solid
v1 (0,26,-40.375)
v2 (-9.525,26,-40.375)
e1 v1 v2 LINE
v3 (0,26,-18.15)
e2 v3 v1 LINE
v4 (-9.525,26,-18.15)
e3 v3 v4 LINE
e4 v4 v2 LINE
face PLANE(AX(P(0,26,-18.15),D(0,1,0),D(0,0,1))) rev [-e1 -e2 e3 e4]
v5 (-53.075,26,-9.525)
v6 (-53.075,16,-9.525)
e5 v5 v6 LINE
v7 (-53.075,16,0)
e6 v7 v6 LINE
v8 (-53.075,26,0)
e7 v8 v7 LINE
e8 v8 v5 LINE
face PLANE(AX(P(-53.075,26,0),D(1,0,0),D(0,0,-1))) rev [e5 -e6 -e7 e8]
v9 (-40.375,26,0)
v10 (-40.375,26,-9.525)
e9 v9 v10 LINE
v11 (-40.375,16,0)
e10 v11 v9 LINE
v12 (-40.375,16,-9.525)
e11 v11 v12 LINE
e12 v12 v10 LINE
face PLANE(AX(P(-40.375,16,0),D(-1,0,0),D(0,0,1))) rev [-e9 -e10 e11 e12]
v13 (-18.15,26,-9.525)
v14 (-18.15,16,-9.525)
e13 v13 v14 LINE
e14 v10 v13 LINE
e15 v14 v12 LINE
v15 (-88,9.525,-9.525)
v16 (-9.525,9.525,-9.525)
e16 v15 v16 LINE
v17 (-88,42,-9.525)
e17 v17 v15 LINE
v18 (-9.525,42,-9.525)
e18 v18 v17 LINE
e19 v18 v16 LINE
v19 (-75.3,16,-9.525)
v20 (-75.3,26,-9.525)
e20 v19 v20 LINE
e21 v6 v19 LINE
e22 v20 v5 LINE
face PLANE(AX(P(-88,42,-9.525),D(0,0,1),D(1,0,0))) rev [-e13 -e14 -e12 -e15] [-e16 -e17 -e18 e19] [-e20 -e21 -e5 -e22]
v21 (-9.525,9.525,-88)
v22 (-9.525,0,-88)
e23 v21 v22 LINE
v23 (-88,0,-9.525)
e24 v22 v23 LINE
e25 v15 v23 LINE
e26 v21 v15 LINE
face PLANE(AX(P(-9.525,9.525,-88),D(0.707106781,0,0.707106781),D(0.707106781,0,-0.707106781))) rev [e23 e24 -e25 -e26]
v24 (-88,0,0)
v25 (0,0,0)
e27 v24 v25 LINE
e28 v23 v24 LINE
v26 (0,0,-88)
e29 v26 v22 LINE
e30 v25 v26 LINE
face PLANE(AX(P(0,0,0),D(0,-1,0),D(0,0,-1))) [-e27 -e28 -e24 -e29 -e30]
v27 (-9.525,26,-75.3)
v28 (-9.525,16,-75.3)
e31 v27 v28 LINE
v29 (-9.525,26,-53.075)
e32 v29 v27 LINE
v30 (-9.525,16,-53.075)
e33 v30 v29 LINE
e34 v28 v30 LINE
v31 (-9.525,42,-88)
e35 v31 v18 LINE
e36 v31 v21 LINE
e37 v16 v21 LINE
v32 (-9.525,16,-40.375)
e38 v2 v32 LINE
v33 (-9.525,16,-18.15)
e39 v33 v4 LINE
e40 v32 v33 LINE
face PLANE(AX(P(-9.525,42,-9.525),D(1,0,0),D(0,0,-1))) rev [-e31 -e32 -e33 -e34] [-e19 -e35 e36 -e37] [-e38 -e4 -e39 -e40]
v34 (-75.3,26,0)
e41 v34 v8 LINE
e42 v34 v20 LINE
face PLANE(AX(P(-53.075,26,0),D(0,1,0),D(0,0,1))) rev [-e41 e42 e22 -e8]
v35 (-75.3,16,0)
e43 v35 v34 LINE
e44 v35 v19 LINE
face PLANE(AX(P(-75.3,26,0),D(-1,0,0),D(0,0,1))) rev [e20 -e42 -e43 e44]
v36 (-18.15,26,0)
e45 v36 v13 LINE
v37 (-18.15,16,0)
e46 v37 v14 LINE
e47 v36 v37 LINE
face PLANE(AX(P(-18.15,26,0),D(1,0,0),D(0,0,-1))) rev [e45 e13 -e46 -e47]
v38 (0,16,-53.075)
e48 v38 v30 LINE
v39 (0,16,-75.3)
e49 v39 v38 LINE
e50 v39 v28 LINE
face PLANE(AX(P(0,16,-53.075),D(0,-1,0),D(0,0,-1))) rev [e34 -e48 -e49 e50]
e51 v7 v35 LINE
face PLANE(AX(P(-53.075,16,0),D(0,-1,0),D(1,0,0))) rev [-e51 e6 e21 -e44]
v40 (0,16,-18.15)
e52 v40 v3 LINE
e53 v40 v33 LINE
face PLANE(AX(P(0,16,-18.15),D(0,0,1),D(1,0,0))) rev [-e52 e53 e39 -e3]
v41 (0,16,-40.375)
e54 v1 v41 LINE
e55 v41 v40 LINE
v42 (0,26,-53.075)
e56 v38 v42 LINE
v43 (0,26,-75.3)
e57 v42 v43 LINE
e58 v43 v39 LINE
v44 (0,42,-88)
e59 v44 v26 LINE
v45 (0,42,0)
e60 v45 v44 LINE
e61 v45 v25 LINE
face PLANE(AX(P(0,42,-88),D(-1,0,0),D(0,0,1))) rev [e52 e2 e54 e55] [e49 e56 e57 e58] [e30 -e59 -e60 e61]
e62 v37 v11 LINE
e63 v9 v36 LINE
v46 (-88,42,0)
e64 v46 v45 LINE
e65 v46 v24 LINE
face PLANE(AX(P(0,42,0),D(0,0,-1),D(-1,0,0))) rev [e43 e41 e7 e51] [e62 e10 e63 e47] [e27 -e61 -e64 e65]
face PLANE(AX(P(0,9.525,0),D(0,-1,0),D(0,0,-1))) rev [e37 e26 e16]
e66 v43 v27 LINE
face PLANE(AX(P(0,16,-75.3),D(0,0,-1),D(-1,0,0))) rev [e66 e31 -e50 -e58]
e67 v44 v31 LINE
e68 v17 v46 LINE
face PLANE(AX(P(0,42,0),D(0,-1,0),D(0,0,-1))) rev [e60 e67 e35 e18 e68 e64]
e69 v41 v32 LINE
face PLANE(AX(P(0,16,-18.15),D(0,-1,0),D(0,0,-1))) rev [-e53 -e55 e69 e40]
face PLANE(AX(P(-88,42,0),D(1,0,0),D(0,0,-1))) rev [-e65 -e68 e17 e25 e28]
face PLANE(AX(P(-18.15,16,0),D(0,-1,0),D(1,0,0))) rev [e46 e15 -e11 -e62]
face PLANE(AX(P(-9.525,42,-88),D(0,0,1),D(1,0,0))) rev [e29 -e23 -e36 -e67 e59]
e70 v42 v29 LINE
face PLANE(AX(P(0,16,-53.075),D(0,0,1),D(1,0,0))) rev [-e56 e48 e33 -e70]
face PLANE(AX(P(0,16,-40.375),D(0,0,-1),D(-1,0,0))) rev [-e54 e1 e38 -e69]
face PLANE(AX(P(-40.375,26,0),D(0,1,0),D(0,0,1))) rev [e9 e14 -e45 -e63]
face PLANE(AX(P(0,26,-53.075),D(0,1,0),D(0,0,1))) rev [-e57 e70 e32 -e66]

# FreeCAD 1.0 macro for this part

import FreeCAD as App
import Part
import Sketcher

V = App.Vector


def add_polygon(sketch, points):
    """Adds a closed chain of lines whose ends are joined by coincident constraints."""
    first, n = sketch.GeometryCount, len(points)
    for a, b in zip(points, points[1:] + points[:1]):
        sketch.addGeometry(Part.LineSegment(App.Vector(*a, 0), App.Vector(*b, 0)), False)
    for i in range(n):
        sketch.addConstraint(Sketcher.Constraint("Coincident", first + i, 2, first + (i + 1) % n, 1))

doc = App.newDocument("Part")
params = doc.addObject("Spreadsheet::Sheet", "Params")
for row, (alias, value) in enumerate([
    ("sketch1_width", "88 mm"),
    ("pad1_length", "42 mm"),
    ("pad2_length", "9.525 mm"),
    ("sketch3_height", "10 mm"),
    ("pocket1_length", "9.525 mm"),
    ("sketch4_width", "10 mm"),
    ("pocket2_length", "9.525 mm"),
], start=1):
    params.set(f"A{row}", alias)
    params.set(f"B{row}", "=" + value)
    params.setAlias(f"B{row}", alias)

body = doc.addObject("PartDesign::Body", "Body")

sketch1 = doc.addObject("Sketcher::SketchObject", "Sketch")
body.addObject(sketch1)
sketch1.AttachmentSupport = (doc.XZ_Plane, [""])
sketch1.MapMode = "FlatFace"
add_polygon(sketch1, [(-88, 0), (0, 0), (0, -88), (-10, -88), (-10, -10), (-88, -10)])
sketch1.addConstraint([
    Sketcher.Constraint("Horizontal", 0),
    Sketcher.Constraint("Vertical", 1),
    Sketcher.Constraint("Horizontal", 2),
    Sketcher.Constraint("Vertical", 3),
    Sketcher.Constraint("Horizontal", 4),
    Sketcher.Constraint("Vertical", 5),
    Sketcher.Constraint("Coincident", 0, 2, -1, 1),
    Sketcher.Constraint("Equal", 0, 1),
    Sketcher.Constraint("Equal", 4, 3),
    Sketcher.Constraint("DistanceX", 0, 1, 0, 2, 88.0),
    Sketcher.Constraint("DistanceX", 2, 2, 2, 1, 9.525),
])
sketch1.setExpression("Constraints[15]", "Params.sketch1_width")
pad1 = doc.addObject("PartDesign::Pad", "Pad")
body.addObject(pad1)
pad1.Profile = sketch1
pad1.setExpression("Length", "Params.pad1_length")
pad1.Reversed = True

sketch2 = doc.addObject("Sketcher::SketchObject", "Sketch001")
body.addObject(sketch2)
sketch2.AttachmentSupport = (doc.XZ_Plane, [""])
sketch2.MapMode = "FlatFace"
add_polygon(sketch2, [(-10, -88), (-88, -10), (-10, -10)])
sketch2.addConstraint([
    Sketcher.Constraint("Horizontal", 1),
    Sketcher.Constraint("Vertical", 2),
    Sketcher.Constraint("Equal", 1, 2),
    Sketcher.Constraint("DistanceX", 0, 2, -1, 1, 88.0),
    Sketcher.Constraint("DistanceY", 2, 2, -1, 1, 88.0),
    Sketcher.Constraint("DistanceX", 1, 1, 1, 2, 78.475),
])
pad2 = doc.addObject("PartDesign::Pad", "Pad001")
body.addObject(pad2)
pad2.Profile = sketch2
pad2.setExpression("Length", "Params.pad2_length")
pad2.Reversed = True

sketch3 = doc.addObject("Sketcher::SketchObject", "Sketch002")
body.addObject(sketch3)
sketch3.AttachmentSupport = (doc.XY_Plane, [""])
sketch3.MapMode = "FlatFace"
sketch3.AttachmentOffset = App.Placement(V(0, 0, -9.525), App.Rotation())
add_polygon(sketch3, [(-18, 26), (-18, 16), (-40, 16), (-40, 26)])
add_polygon(sketch3, [(-53, 26), (-53, 16), (-75, 16), (-75, 26)])
sketch3.addConstraint([
    Sketcher.Constraint("Vertical", 0),
    Sketcher.Constraint("Horizontal", 1),
    Sketcher.Constraint("Vertical", 2),
    Sketcher.Constraint("Horizontal", 3),
    Sketcher.Constraint("Vertical", 4),
    Sketcher.Constraint("Horizontal", 5),
    Sketcher.Constraint("Vertical", 6),
    Sketcher.Constraint("Horizontal", 7),
    Sketcher.Constraint("Horizontal", 1, 2, 4, 2),
    Sketcher.Constraint("Horizontal", 3, 2, 6, 2),
    Sketcher.Constraint("Equal", 3, 5),
    Sketcher.Constraint("DistanceY", 0, 2, 0, 1, 10.0),
    Sketcher.Constraint("DistanceY", -1, 1, 0, 2, 16.0),
    Sketcher.Constraint("DistanceX", 5, 2, -1, 1, 75.3),
    Sketcher.Constraint("DistanceX", 4, 2, 1, 2, 12.7),
    Sketcher.Constraint("DistanceX", 1, 2, 1, 1, 22.225),
])
sketch3.setExpression("Constraints[19]", "Params.sketch3_height")
pocket1 = doc.addObject("PartDesign::Pocket", "Pocket")
body.addObject(pocket1)
pocket1.Profile = sketch3
pocket1.setExpression("Length", "Params.pocket1_length")
pocket1.Reversed = True

sketch4 = doc.addObject("Sketcher::SketchObject", "Sketch003")
body.addObject(sketch4)
sketch4.AttachmentSupport = (doc.YZ_Plane, [""])
sketch4.MapMode = "FlatFace"
sketch4.AttachmentOffset = App.Placement(V(0, 0, -9.525), App.Rotation())
add_polygon(sketch4, [(26, -40), (16, -40), (16, -18), (26, -18)])
add_polygon(sketch4, [(26, -75), (16, -75), (16, -53), (26, -53)])
sketch4.addConstraint([
    Sketcher.Constraint("Horizontal", 0),
    Sketcher.Constraint("Vertical", 1),
    Sketcher.Constraint("Horizontal", 2),
    Sketcher.Constraint("Vertical", 3),
    Sketcher.Constraint("Horizontal", 4),
    Sketcher.Constraint("Vertical", 5),
    Sketcher.Constraint("Horizontal", 6),
    Sketcher.Constraint("Vertical", 7),
    Sketcher.Constraint("Vertical", 1, 2, 4, 2),
    Sketcher.Constraint("Vertical", 3, 2, 6, 2),
    Sketcher.Constraint("Equal", 3, 5),
    Sketcher.Constraint("DistanceX", 0, 2, 0, 1, 10.0),
    Sketcher.Constraint("DistanceX", -1, 1, 0, 2, 16.0),
    Sketcher.Constraint("DistanceY", 4, 2, -1, 1, 75.3),
    Sketcher.Constraint("DistanceY", 5, 2, 0, 2, 12.7),
    Sketcher.Constraint("DistanceY", 1, 1, 1, 2, 22.225),
])
sketch4.setExpression("Constraints[19]", "Params.sketch4_width")
pocket2 = doc.addObject("PartDesign::Pocket", "Pocket001")
body.addObject(pocket2)
pocket2.Profile = sketch4
pocket2.setExpression("Length", "Params.pocket2_length")
pocket2.Reversed = True

doc.recompute()
